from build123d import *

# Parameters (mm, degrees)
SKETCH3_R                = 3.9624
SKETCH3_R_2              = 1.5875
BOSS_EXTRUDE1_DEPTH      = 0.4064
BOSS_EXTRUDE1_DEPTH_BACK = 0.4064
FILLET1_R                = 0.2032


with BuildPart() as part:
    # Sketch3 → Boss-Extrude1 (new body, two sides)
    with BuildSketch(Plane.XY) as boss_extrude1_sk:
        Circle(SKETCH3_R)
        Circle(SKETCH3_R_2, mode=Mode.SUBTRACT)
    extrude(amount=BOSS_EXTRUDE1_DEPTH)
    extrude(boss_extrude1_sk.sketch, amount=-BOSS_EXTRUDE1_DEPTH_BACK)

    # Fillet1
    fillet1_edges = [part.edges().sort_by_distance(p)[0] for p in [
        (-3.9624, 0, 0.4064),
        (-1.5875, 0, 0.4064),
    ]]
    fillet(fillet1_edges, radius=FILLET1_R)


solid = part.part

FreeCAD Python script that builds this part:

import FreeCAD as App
import Part
import Sketcher

V = App.Vector
Q = App.Units.Quantity


def edges_at(feature, points):
    """Names of the edges that pass closest to the given points."""
    edges = feature.Shape.Edges
    near = lambda p: min(range(len(edges)), key=lambda i: edges[i].distToShape(Part.Vertex(*p))[0])
    return sorted({f"Edge{near(p) + 1}" for p in points})

doc = App.newDocument("Part")
body = doc.addObject("PartDesign::Body", "Body")

# Sketch on XY plane
sketch1 = doc.addObject("Sketcher::SketchObject", "Sketch")
body.addObject(sketch1)
sketch1.AttachmentSupport = (doc.XY_Plane, [""])
sketch1.MapMode = "FlatFace"
sketch1.addGeometry(Part.Circle(V(0, 0, 0), V(0, 0, 1), 4), False)
sketch1.addGeometry(Part.Circle(V(0, 0, 0), V(0, 0, 1), 1.6), False)
sketch1.addConstraint(Sketcher.Constraint("Coincident", 0, 3, -1, 1))
sketch1.addConstraint(Sketcher.Constraint("Coincident", 1, 3, -1, 1))
sketch1.addConstraint(Sketcher.Constraint("Diameter", 0, Q("0.312 in")))
sketch1.addConstraint(Sketcher.Constraint("Diameter", 1, Q("0.125 in")))
pad1 = doc.addObject("PartDesign::Pad", "Pad")
body.addObject(pad1)
pad1.Profile = sketch1
pad1.Type = "TwoLengths"
pad1.Length = Q("0.016 in")
pad1.Length2 = Q("0.016 in")
doc.recompute()

fillet = doc.addObject("PartDesign::Fillet", "Fillet")
body.addObject(fillet)
fillet.Base = (pad1, edges_at(pad1, [(-3.962, 0, 0.406), (-1.587, 0, 0.406)]))
fillet.Radius = Q("0.008 in")

doc.recompute()
